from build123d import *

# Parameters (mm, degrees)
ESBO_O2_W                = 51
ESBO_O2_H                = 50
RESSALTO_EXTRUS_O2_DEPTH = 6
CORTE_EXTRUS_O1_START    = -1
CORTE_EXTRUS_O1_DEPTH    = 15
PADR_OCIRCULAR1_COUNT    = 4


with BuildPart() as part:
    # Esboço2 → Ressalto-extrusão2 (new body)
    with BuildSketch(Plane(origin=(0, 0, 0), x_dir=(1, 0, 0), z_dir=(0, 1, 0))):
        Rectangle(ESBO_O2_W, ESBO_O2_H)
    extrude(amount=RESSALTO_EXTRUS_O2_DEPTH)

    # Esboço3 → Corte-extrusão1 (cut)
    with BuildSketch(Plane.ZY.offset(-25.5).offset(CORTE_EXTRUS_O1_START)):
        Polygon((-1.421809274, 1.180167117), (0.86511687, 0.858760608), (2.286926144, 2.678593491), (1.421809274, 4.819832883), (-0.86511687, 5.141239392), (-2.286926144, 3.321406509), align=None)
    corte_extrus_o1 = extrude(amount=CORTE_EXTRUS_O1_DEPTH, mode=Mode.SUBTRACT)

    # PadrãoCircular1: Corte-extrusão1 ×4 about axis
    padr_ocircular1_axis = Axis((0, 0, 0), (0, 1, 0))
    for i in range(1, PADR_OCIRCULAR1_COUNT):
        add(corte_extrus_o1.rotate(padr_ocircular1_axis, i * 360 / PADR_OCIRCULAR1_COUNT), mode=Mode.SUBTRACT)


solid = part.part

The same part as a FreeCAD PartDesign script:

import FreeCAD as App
import Part
import Sketcher
from FreeCAD import Vector
Q = App.Units.Quantity


def add_polygon(sketch, points):
    """Adds a closed chain of lines whose ends are joined by coincident constraints."""
    first, n = sketch.GeometryCount, len(points)
    for a, b in zip(points, points[1:] + points[:1]):
        sketch.addGeometry(Part.LineSegment(App.Vector(*a, 0), App.Vector(*b, 0)), False)
    for i in range(n):
        sketch.addConstraint(Sketcher.Constraint("Coincident", first + i, 2, first + (i + 1) % n, 1))

doc = App.newDocument("Part")
body = doc.addObject("PartDesign::Body", "Body")

# Sketch on XZ plane
sketch1 = doc.addObject("Sketcher::SketchObject", "Sketch")
body.addObject(sketch1)
sketch1.AttachmentSupport = (doc.XZ_Plane, [""])
sketch1.MapMode = "FlatFace"
add_polygon(sketch1, [(-25.5, -25), (-25.5, 25), (25.5, 25), (25.5, -25)])  # lines 0-3
sketch1.addConstraint([
    Sketcher.Constraint("Vertical", 0),
    Sketcher.Constraint("Horizontal", 1),
    Sketcher.Constraint("Vertical", 2),
    Sketcher.Constraint("Horizontal", 3),
    Sketcher.Constraint("Symmetric", 0, 2, 2, 2, -1, 1),
    Sketcher.Constraint("DistanceX", 1, 1, 1, 2, Q("51 mm")),
    Sketcher.Constraint("DistanceY", 0, 1, 0, 2, Q("50 mm")),
])
pad1 = doc.addObject("PartDesign::Pad", "Pad")
body.addObject(pad1)
pad1.Profile = sketch1
pad1.Length = 6
pad1.Reversed = True

# Sketch on YZ plane
sketch2 = doc.addObject("Sketcher::SketchObject", "Sketch001")
body.addObject(sketch2)
sketch2.AttachmentSupport = (doc.YZ_Plane, [""])
sketch2.MapMode = "FlatFace"
sketch2.AttachmentOffset = App.Placement(Vector(0, 0, 26.5), App.Rotation())
add_polygon(sketch2, [(1.180167, -1.421809), (0.858761, 0.865117), (2.678593, 2.286926), (4.819833, 1.421809), (5.141239, -0.865117), (3.321407, -2.286926)])  # lines 0-5
sketch2.addConstraint([
    Sketcher.Constraint("Parallel", 0, 3),
    Sketcher.Constraint("Parallel", 1, 4),
    Sketcher.Constraint("Parallel", 2, 5),
    Sketcher.Constraint("Equal", 0, 1),
    Sketcher.Constraint("Equal", 1, 2),
    Sketcher.Constraint("Equal", 2, 3),
    Sketcher.Constraint("Angle", 0, Q("98 deg")),
    Sketcher.Constraint("Angle", 1, Q("38 deg")),
    Sketcher.Constraint("Angle", 2, Q("-22 deg")),
    Sketcher.Constraint("Distance", 0, Q("2.309401 mm")),
    Sketcher.Constraint("DistanceX", -1, 1, 0, 2, Q("0.858761 mm")),
    Sketcher.Constraint("DistanceY", -1, 1, 2, 2, Q("1.421809 mm")),
])
pocket1 = doc.addObject("PartDesign::Pocket", "Pocket")
body.addObject(pocket1)
pocket1.Profile = sketch2
pocket1.Length = 15
doc.recompute()

polarpattern = doc.addObject("PartDesign::PolarPattern", "PolarPattern")
body.addObject(polarpattern)
polarpattern.Originals = [pocket1]
polarpattern.Axis = (doc.Y_Axis, [""])
polarpattern.Angle = 360
polarpattern.Occurrences = 4
body.Tip = polarpattern

doc.recompute()
